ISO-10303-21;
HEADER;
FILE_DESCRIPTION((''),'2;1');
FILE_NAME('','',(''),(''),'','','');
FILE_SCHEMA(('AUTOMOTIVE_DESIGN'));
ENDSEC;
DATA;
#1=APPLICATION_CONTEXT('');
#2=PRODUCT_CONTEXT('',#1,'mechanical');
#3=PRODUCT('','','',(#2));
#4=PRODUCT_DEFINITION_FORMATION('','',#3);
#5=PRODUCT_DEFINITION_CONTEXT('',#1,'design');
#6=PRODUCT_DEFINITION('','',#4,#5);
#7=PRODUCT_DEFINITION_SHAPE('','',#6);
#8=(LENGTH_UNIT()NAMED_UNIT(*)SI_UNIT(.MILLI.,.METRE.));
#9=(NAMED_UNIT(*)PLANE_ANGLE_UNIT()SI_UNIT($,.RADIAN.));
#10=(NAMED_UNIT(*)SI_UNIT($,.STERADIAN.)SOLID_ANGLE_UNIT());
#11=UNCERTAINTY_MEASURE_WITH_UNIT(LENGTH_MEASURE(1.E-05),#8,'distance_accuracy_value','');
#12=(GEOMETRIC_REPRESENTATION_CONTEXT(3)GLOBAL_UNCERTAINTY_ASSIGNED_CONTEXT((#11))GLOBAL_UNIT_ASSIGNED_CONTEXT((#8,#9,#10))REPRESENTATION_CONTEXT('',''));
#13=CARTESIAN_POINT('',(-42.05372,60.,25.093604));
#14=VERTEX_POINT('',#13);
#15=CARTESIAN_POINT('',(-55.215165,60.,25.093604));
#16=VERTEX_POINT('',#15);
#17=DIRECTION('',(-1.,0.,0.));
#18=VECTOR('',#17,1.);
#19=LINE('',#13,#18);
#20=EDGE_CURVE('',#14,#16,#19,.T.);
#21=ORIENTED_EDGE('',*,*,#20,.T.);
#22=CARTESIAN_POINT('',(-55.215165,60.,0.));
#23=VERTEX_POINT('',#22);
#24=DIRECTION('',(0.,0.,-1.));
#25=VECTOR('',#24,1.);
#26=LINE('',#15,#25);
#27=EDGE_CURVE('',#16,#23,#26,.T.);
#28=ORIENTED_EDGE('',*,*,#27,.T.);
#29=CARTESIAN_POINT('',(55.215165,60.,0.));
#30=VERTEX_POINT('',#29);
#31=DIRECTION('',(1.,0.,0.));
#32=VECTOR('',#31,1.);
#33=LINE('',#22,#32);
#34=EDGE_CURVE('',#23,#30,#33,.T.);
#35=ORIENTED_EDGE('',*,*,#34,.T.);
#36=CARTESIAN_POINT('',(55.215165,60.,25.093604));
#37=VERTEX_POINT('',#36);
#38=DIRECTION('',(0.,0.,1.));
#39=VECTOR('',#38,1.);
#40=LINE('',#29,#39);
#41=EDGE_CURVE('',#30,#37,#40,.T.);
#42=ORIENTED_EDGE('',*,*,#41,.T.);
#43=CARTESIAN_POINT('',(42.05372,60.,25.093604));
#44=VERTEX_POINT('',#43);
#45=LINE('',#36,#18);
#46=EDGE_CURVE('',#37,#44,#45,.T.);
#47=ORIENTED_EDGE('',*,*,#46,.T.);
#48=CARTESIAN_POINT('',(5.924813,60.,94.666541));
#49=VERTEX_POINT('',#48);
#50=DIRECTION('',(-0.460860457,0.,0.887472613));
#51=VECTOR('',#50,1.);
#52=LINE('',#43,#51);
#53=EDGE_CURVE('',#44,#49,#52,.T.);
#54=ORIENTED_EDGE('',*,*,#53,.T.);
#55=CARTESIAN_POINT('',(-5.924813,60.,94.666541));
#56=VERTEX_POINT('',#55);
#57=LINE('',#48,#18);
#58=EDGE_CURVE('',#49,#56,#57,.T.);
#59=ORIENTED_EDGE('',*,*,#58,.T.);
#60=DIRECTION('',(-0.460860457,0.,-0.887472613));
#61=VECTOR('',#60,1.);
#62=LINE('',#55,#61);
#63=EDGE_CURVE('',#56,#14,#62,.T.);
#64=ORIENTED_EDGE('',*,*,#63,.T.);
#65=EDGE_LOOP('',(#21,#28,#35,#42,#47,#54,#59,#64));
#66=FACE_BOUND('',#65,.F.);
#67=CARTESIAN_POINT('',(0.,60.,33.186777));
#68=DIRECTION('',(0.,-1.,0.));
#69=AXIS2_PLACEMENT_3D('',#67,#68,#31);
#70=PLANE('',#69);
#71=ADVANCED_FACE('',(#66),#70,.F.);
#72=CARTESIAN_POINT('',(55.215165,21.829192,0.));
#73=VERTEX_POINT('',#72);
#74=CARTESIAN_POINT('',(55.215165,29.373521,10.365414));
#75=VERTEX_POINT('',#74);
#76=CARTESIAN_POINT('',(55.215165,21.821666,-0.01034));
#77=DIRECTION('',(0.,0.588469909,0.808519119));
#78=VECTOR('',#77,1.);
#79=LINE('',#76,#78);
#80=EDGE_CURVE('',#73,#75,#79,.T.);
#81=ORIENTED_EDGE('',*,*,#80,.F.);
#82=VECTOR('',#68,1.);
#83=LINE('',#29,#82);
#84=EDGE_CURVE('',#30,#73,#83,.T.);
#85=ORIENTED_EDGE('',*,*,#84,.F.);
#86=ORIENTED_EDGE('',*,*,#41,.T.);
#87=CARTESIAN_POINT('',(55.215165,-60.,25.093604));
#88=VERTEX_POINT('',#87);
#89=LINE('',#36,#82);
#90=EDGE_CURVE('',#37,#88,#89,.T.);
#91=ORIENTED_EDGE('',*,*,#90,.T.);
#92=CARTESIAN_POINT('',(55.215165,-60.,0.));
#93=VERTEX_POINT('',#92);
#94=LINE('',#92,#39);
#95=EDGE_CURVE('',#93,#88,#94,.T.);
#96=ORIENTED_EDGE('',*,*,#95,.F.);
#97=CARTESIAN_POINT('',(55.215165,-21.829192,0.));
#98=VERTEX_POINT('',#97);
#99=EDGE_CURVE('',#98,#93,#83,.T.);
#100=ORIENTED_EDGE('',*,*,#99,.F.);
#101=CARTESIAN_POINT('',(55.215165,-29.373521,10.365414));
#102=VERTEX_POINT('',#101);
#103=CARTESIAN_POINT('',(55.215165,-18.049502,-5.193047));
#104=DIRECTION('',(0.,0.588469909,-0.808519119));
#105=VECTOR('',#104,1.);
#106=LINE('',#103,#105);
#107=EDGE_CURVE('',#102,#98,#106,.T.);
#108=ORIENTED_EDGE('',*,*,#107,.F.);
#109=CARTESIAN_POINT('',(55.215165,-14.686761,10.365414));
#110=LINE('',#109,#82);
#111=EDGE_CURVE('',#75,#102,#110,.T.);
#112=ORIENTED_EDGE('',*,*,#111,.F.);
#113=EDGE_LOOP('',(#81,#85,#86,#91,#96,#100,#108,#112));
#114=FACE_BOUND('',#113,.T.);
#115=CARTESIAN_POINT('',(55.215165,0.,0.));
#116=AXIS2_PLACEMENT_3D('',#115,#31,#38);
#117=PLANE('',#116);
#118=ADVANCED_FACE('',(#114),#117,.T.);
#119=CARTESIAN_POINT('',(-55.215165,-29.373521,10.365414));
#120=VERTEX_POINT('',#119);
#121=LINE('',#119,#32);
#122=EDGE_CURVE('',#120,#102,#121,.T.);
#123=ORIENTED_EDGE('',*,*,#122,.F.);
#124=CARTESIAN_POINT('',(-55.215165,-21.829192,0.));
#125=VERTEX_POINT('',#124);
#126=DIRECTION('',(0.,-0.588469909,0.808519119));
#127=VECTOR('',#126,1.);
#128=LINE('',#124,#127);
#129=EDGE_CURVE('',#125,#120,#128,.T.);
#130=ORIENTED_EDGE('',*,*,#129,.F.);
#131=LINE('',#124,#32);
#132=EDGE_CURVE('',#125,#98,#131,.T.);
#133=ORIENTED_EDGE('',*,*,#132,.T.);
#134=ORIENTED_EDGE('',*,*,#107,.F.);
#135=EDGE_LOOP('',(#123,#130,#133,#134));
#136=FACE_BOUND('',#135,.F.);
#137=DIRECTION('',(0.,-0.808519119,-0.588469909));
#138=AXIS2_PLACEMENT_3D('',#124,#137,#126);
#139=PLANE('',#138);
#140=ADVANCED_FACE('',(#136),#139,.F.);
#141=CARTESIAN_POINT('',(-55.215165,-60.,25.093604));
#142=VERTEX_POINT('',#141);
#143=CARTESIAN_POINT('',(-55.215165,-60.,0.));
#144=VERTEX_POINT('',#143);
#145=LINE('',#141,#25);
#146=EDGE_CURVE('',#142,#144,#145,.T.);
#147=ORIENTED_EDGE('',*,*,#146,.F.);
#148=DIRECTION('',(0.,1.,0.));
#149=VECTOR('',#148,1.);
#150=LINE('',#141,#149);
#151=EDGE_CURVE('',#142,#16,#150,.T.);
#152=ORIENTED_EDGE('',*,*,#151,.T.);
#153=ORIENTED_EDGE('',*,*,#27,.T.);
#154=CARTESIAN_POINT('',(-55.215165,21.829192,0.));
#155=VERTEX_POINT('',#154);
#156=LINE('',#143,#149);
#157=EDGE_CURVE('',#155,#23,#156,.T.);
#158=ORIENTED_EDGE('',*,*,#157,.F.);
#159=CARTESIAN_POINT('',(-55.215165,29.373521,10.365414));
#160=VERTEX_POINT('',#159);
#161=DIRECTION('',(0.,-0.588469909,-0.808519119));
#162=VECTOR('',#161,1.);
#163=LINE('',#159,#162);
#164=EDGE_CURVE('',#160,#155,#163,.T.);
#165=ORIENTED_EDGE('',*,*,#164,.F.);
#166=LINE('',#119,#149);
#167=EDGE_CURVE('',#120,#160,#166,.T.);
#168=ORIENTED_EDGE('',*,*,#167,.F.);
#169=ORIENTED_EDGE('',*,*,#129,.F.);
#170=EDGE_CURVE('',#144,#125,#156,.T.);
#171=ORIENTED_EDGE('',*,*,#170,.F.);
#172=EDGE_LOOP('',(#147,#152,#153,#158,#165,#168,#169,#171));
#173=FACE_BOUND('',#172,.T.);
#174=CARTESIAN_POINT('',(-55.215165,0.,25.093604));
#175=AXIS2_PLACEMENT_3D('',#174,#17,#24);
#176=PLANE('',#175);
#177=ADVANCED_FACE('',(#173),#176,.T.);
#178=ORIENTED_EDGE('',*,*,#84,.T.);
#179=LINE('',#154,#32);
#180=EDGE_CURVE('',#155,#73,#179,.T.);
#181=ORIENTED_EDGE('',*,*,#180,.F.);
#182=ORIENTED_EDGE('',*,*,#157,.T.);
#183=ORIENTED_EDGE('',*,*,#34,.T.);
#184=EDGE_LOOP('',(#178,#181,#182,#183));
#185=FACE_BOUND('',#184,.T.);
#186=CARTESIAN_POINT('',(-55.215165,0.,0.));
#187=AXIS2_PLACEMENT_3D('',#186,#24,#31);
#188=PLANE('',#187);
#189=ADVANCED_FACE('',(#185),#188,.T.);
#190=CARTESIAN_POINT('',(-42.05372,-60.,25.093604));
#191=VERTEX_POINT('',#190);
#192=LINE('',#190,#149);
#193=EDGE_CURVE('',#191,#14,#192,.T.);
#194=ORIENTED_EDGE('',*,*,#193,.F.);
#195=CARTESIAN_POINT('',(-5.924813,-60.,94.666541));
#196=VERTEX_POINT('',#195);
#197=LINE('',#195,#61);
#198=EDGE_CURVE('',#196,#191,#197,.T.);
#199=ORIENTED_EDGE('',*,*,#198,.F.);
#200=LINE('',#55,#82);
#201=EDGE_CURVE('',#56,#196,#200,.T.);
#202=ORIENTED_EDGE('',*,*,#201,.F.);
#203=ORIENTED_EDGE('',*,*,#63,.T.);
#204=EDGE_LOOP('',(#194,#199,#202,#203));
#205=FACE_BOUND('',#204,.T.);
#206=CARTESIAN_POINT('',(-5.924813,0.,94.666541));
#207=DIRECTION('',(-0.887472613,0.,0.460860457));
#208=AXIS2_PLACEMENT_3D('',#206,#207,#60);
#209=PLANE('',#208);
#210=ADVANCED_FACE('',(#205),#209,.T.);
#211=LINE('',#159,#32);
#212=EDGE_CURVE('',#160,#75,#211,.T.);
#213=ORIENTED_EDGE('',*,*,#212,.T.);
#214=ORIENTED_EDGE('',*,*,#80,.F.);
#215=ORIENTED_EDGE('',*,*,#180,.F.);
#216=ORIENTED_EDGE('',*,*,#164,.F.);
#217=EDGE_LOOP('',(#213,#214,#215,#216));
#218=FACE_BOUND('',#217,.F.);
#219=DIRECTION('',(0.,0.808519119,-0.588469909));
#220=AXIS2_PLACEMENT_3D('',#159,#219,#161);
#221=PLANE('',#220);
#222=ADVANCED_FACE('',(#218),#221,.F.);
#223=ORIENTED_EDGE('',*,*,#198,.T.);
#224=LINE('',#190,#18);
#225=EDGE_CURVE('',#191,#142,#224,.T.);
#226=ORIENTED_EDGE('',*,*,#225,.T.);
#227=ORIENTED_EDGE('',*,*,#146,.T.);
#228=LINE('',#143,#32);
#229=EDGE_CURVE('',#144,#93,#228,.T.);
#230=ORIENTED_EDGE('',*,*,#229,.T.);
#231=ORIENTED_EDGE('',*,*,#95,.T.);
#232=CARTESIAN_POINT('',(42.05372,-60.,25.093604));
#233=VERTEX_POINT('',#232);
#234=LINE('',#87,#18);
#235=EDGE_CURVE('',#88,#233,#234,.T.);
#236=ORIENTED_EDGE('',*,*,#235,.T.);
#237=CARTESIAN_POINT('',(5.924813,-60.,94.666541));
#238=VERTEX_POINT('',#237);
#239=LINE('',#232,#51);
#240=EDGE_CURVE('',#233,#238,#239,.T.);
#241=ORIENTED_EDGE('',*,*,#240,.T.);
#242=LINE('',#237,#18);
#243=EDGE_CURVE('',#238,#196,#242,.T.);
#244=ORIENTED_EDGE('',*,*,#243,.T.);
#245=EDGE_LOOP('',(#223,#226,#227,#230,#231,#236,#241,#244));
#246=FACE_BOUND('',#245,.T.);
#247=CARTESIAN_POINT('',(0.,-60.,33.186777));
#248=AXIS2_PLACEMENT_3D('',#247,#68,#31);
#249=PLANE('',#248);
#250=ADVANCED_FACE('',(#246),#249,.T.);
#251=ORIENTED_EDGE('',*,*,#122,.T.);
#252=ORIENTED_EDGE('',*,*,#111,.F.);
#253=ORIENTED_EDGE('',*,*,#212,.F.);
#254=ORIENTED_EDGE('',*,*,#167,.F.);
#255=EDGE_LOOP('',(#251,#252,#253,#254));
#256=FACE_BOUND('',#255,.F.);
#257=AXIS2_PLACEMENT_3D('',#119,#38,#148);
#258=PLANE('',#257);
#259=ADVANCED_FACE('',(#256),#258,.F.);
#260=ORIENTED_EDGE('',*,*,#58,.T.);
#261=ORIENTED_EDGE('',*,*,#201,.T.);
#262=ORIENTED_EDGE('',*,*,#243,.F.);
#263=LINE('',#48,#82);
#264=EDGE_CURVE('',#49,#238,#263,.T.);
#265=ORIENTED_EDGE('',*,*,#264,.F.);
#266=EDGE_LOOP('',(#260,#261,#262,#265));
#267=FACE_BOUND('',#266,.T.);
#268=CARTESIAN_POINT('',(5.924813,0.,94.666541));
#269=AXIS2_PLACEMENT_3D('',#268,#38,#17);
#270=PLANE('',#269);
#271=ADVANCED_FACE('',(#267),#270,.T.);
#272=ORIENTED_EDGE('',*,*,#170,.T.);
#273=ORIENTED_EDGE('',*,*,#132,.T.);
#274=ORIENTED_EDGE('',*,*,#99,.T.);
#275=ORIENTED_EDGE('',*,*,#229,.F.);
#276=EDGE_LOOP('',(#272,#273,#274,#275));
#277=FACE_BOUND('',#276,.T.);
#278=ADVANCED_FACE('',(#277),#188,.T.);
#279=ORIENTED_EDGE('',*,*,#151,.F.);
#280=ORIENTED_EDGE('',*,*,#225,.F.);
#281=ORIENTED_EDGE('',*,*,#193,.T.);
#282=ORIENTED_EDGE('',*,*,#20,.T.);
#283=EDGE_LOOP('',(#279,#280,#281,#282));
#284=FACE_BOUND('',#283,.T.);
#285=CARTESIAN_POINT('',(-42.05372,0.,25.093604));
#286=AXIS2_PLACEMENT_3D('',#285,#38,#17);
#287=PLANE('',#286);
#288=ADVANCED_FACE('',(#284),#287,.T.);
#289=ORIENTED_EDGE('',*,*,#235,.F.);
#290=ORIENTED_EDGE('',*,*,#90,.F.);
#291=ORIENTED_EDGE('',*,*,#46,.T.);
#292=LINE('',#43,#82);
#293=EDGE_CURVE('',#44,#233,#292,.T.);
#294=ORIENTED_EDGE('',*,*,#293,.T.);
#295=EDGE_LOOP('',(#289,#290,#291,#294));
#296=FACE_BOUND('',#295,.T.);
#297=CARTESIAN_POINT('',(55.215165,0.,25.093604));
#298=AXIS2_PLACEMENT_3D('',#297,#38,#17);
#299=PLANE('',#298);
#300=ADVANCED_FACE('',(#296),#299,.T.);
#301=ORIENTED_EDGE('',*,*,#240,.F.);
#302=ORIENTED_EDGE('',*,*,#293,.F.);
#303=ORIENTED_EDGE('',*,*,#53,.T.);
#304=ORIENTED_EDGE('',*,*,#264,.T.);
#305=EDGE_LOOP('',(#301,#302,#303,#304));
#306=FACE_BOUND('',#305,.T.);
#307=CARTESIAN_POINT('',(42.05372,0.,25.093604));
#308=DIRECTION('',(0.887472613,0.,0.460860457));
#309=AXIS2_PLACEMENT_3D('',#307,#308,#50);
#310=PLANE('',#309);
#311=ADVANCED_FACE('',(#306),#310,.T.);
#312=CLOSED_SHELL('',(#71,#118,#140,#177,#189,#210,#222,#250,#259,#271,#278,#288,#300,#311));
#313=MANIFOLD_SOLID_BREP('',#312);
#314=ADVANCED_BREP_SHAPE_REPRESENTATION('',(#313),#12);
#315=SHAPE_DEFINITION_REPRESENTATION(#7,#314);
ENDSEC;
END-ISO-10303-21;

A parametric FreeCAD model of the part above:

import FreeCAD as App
import Part
import Sketcher

V = App.Vector


def add_polygon(sketch, points):
    """Adds a closed chain of lines whose ends are joined by coincident constraints."""
    first, n = sketch.GeometryCount, len(points)
    for a, b in zip(points, points[1:] + points[:1]):
        sketch.addGeometry(Part.LineSegment(App.Vector(*a, 0), App.Vector(*b, 0)), False)
    for i in range(n):
        sketch.addConstraint(Sketcher.Constraint("Coincident", first + i, 2, first + (i + 1) % n, 1))

doc = App.newDocument("Part")
body = doc.addObject("PartDesign::Body", "Body")

# Sketch on XZ plane
sketch1 = body.newObject("Sketcher::SketchObject", "Sketch")
sketch1.AttachmentSupport = (doc.getObject("XZ_Plane"), [""])
sketch1.MapMode = "FlatFace"
add_polygon(sketch1, [(-55, 0), (55, 0), (55, 25), (42, 25), (6, 95), (-6, 95), (-42, 25), (-55, 25)])  # lines 0-7
sketch1.addConstraint([
    Sketcher.Constraint("Horizontal", 0),
    Sketcher.Constraint("Vertical", 1),
    Sketcher.Constraint("Horizontal", 2),
    Sketcher.Constraint("Horizontal", 4),
    Sketcher.Constraint("Horizontal", 6),
    Sketcher.Constraint("Vertical", 7),
    Sketcher.Constraint("Symmetric", 0, 2, 7, 2, -1, 1),
    Sketcher.Constraint("Symmetric", 2, 2, 5, 2, -2),
    Sketcher.Constraint("Equal", 3, 5),
    Sketcher.Constraint("DistanceX", 0, 1, 0, 2, 110.43033),
    Sketcher.Constraint("Distance", 3, 78.394461),
    Sketcher.Constraint("DistanceX", 2, 2, 2, 1, 13.161445),
    Sketcher.Constraint("DistanceX", 4, 2, 4, 1, 11.849626),
    Sketcher.Constraint("DistanceY", 1, 1, 1, 2, 25.093604),
])
pad1 = body.newObject("PartDesign::Pad", "Pad")
pad1.Profile = sketch1
pad1.Length = 120
pad1.Midplane = True

# Sketch on YZ plane
sketch2 = body.newObject("Sketcher::SketchObject", "Sketch001")
sketch2.AttachmentSupport = (doc.getObject("YZ_Plane"), [""])
sketch2.MapMode = "FlatFace"
sketch2.AttachmentOffset = App.Placement(V(0, 0, -55.215165), App.Rotation())
add_polygon(sketch2, [(29, 10), (22, 0), (-22, 0), (-29, 10)])  # lines 0-3
sketch2.addConstraint([
    Sketcher.Constraint("Horizontal", 1),
    Sketcher.Constraint("Horizontal", 3),
    Sketcher.Constraint("Symmetric", 0, 2, 1, 2, -1, 1),
    Sketcher.Constraint("Equal", 0, 2),
    Sketcher.Constraint("DistanceX", 1, 2, 1, 1, 43.658384),
    Sketcher.Constraint("DistanceX", 3, 1, 3, 2, 58.747042),
    Sketcher.Constraint("Distance", 0, 12.820246),
])
pocket1 = body.newObject("PartDesign::Pocket", "Pocket")
pocket1.Profile = sketch2
pocket1.Type = "ThroughAll"
pocket1.Reversed = True

doc.recompute()
